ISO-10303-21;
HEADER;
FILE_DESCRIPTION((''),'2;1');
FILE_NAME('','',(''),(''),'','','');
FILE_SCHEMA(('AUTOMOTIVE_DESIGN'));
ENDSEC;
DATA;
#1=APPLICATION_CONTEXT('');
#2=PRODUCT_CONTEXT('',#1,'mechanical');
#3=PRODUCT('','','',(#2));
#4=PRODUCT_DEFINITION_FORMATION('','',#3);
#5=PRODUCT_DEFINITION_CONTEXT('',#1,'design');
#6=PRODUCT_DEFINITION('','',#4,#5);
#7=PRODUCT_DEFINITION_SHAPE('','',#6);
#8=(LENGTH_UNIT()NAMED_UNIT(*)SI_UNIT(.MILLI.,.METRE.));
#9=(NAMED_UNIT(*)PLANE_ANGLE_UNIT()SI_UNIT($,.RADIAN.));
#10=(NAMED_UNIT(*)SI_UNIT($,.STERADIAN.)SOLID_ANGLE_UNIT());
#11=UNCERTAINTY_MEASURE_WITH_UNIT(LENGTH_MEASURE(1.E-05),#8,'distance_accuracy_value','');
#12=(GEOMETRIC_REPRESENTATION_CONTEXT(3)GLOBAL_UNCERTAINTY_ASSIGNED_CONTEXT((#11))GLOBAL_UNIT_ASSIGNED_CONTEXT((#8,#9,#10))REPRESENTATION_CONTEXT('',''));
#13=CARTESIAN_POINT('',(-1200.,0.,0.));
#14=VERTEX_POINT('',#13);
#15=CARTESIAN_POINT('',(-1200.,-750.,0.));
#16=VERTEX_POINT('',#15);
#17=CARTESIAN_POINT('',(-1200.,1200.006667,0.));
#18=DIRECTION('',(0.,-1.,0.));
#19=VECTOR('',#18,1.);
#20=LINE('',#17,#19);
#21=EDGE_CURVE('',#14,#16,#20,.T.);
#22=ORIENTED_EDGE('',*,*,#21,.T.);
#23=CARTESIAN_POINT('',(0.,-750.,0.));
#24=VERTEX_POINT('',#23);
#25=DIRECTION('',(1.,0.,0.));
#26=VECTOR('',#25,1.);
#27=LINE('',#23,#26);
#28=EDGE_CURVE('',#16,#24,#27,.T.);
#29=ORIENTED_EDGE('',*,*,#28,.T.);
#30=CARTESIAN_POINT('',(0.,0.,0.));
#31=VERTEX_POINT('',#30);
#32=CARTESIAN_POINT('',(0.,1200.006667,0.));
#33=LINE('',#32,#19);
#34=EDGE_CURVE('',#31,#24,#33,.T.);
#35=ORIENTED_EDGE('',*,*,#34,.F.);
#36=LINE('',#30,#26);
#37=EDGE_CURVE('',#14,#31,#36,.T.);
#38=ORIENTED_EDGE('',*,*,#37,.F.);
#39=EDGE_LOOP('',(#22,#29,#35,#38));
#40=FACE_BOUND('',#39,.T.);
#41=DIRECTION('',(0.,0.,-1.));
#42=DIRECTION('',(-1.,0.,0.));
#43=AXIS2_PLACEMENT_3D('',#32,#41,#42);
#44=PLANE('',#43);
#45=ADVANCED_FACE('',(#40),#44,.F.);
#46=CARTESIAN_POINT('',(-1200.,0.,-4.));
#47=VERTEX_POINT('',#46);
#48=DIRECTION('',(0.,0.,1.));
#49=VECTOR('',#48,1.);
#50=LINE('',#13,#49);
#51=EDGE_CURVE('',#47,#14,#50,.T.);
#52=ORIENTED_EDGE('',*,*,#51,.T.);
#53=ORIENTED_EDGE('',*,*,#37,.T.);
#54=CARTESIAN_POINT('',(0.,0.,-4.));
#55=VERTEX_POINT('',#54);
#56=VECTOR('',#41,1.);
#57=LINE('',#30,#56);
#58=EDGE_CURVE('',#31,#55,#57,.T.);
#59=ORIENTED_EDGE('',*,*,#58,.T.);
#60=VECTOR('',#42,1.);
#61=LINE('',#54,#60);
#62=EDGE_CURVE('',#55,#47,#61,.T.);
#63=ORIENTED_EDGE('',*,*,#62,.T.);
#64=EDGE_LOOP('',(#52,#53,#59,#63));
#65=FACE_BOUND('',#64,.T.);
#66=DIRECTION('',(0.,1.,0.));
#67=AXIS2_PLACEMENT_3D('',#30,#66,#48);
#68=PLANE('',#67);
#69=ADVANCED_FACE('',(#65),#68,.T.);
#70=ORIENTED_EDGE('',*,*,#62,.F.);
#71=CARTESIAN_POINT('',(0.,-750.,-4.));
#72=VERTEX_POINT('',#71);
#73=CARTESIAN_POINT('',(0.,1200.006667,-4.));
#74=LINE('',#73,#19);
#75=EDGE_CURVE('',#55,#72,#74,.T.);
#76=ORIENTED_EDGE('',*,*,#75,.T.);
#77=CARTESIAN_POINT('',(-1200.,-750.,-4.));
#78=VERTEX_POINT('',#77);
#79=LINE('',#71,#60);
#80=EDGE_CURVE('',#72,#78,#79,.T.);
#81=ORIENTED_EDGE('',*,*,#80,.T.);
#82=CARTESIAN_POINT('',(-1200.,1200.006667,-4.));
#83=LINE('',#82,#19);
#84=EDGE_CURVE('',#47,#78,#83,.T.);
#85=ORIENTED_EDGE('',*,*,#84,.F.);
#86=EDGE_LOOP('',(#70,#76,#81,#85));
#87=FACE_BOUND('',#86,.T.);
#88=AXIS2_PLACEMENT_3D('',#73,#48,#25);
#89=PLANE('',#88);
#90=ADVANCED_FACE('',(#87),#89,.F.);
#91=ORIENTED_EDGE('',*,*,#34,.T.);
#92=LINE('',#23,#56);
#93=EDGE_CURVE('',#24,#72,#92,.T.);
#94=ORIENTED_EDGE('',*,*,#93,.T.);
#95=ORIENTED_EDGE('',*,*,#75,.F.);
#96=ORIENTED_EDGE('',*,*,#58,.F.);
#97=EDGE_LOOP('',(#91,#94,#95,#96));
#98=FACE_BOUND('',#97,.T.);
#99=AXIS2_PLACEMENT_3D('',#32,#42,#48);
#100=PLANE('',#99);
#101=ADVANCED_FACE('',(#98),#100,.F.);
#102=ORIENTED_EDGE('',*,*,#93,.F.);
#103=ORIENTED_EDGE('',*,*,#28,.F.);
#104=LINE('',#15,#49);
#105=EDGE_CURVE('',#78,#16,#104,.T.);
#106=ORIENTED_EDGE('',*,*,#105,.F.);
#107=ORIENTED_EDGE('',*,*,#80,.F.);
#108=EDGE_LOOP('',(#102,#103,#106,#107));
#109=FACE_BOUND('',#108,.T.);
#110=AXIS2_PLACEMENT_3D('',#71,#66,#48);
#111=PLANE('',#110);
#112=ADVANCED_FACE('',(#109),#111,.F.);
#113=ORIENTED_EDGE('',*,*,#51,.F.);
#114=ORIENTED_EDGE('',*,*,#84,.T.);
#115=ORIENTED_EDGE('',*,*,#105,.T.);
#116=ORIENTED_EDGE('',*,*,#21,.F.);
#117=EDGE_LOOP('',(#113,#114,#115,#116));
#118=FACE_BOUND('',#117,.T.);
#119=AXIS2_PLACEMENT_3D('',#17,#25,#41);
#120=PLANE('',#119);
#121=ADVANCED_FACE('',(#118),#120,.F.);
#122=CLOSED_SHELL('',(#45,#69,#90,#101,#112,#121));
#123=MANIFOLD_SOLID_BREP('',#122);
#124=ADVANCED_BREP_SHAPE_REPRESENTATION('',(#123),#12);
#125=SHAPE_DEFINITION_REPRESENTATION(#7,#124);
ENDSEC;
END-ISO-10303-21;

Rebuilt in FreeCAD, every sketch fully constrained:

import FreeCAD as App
import Part
import Sketcher

doc = App.newDocument("Part")
body = doc.addObject("PartDesign::Body", "Body")

sketch1 = body.newObject("Sketcher::SketchObject", "Sketch")
sketch1.AttachmentSupport = (doc.getObject("XZ_Plane"), [""])
sketch1.MapMode = "FlatFace"
sketch1.AttachmentOffset = App.Placement(App.Vector(0, 0, 750), App.Rotation())
sketch1.addGeometry([
    Part.LineSegment(App.Vector(0, 0, 0), App.Vector(0, -4, 0)),
    Part.LineSegment(App.Vector(0, -4, 0), App.Vector(-1200, -4, 0)),
    Part.LineSegment(App.Vector(-1200, -4, 0), App.Vector(-1200, 0, 0)),
    Part.LineSegment(App.Vector(-1200, 0, 0), App.Vector(0, 0, 0)),
], False)
sketch1.addConstraint([
    Sketcher.Constraint("Coincident", 0, 2, 1, 1),
    Sketcher.Constraint("Coincident", 1, 2, 2, 1),
    Sketcher.Constraint("Coincident", 2, 2, 3, 1),
    Sketcher.Constraint("Coincident", 3, 2, 0, 1),
    Sketcher.Constraint("Vertical", 0),
    Sketcher.Constraint("Horizontal", 1),
    Sketcher.Constraint("Vertical", 2),
    Sketcher.Constraint("Horizontal", 3),
    Sketcher.Constraint("Coincident", 3, 2, -1, 1),
    Sketcher.Constraint("DistanceX", 1, 2, 1, 1, 1200.0),
    Sketcher.Constraint("DistanceY", 0, 2, 0, 1, 4.0),
])
pad1 = body.newObject("PartDesign::Pad", "Pad")
pad1.Profile = sketch1
pad1.Length = 750
pad1.Reversed = True

doc.recompute()
